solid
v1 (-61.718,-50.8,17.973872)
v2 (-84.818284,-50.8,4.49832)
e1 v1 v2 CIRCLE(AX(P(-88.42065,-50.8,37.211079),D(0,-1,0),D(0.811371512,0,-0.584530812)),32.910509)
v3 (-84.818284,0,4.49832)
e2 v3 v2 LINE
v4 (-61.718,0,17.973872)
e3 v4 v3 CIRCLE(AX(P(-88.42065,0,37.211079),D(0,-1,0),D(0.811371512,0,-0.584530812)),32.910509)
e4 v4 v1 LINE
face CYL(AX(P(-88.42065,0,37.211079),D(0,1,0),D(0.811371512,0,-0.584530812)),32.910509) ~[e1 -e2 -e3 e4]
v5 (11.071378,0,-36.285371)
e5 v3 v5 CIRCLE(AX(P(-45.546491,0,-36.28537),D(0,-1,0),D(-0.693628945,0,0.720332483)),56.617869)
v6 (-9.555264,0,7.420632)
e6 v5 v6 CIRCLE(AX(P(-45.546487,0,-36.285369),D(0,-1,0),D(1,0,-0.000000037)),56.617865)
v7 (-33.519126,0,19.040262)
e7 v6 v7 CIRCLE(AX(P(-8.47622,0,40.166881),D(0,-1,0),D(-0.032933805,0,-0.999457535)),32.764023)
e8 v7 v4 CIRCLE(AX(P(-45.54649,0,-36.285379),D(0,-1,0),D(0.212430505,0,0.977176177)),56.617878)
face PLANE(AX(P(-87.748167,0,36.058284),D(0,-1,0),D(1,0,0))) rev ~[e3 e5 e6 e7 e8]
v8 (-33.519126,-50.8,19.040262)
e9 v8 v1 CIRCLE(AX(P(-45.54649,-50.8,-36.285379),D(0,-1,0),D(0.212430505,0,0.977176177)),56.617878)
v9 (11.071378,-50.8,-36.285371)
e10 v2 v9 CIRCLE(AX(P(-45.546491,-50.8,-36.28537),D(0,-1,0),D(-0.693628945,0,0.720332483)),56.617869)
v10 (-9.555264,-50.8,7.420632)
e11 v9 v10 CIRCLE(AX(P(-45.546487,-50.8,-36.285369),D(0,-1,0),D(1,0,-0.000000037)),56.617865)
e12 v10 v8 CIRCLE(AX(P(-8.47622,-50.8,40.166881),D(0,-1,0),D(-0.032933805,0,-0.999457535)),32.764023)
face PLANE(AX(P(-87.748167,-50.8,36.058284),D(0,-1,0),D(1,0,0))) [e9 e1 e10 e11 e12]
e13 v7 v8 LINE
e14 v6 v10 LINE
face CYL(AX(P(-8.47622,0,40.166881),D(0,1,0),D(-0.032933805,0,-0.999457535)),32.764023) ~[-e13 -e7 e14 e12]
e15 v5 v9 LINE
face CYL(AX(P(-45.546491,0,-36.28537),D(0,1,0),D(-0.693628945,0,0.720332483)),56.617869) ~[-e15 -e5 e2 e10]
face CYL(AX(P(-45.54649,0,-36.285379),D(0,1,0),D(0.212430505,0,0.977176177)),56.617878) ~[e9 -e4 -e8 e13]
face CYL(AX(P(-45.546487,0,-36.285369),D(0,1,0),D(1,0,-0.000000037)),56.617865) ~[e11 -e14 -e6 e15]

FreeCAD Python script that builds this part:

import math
import FreeCAD as App
import Part
import Sketcher
Q = App.Units.Quantity

doc = App.newDocument("Part")
params = doc.addObject("Spreadsheet::Sheet", "Params")
for row, (alias, value) in enumerate([
    ("pad1_length", "2 in"),
    ("pocket1_length", "1 in"),
], start=1):
    params.set(f"A{row}", alias)
    params.set(f"B{row}", "=" + value)
    params.setAlias(f"B{row}", alias)

body = doc.addObject("PartDesign::Body", "Body")

# Sketch on XZ plane
sketch1 = doc.addObject("Sketcher::SketchObject", "Sketch")
body.addObject(sketch1)
sketch1.AttachmentSupport = (doc.XZ_Plane, [""])
sketch1.MapMode = "FlatFace"
sketch1.addGeometry([
    Part.ArcOfCircle(Part.Circle(App.Vector(-88, 37, 0), App.Vector(0, 0, 1), 33), math.radians(-36), math.radians(276)),  # 0
    Part.ArcOfCircle(Part.Circle(App.Vector(-46, -36, 0), App.Vector(0, 0, 1), 57), math.radians(134), math.radians(360)),  # 1
    Part.ArcOfCircle(Part.Circle(App.Vector(-46, -36, 0), App.Vector(0, 0, 1), 57), math.radians(0), math.radians(51)),  # 2
    Part.ArcOfCircle(Part.Circle(App.Vector(-8, 40, 0), App.Vector(0, 0, 1), 33), math.radians(-92), math.radians(220)),  # 3
    Part.ArcOfCircle(Part.Circle(App.Vector(-46, -36, 0), App.Vector(0, 0, 1), 57), math.radians(78), math.radians(107)),  # 4
], False)
sketch1.addConstraint([
    Sketcher.Constraint("Coincident", 0, 2, 1, 1),
    Sketcher.Constraint("Tangent", 1, 2, 2, 1),
    Sketcher.Constraint("Coincident", 2, 2, 3, 1),
    Sketcher.Constraint("Coincident", 3, 2, 4, 1),
    Sketcher.Constraint("Coincident", 4, 2, 0, 1),
    Sketcher.Constraint("Coincident", 4, 3, 1, 3),
    Sketcher.Constraint("Radius", 0, Q("32.910509 mm")),
    Sketcher.Constraint("Radius", 1, Q("56.617869 mm")),
    Sketcher.Constraint("Radius", 2, Q("56.617865 mm")),
    Sketcher.Constraint("Radius", 3, Q("32.764023 mm")),
    Sketcher.Constraint("Radius", 4, Q("56.617878 mm")),
    Sketcher.Constraint("DistanceX", 4, 2, -1, 1, Q("61.718 mm")),
    Sketcher.Constraint("DistanceY", 4, 3, 0, 2, Q("40.783699 mm")),
    Sketcher.Constraint("DistanceX", 3, 3, 1, 2, Q("19.547598 mm")),
    Sketcher.Constraint("DistanceY", 2, 3, 2, 2, Q("43.706001 mm")),
    Sketcher.Constraint("DistanceX", 0, 3, -1, 1, Q("88.42065 mm")),
    Sketcher.Constraint("DistanceY", -1, 1, 0, 3, Q("37.211079 mm")),
    Sketcher.Constraint("DistanceY", 1, 2, -1, 1, Q("36.285371 mm")),
])
pad1 = doc.addObject("PartDesign::Pad", "Pad")
body.addObject(pad1)
pad1.Profile = sketch1
pad1.setExpression("Length", "Params.pad1_length")

# Sketch on XZ plane
sketch2 = doc.addObject("Sketcher::SketchObject", "Sketch001")
body.addObject(sketch2)
sketch2.AttachmentSupport = (doc.XZ_Plane, [""])
sketch2.MapMode = "FlatFace"
sketch2.addGeometry([
    Part.Circle(App.Vector(-75, -19, 0), App.Vector(0, 0, 1), 11),
    Part.Circle(App.Vector(-26, -18, 0), App.Vector(0, 0, 1), 10),
], False)
sketch2.addConstraint([
    Sketcher.Constraint("Diameter", 0, Q("21.605158 mm")),
    Sketcher.Constraint("Diameter", 1, Q("20.034884 mm")),
    Sketcher.Constraint("DistanceX", 0, 3, -1, 1, Q("75.122081 mm")),
    Sketcher.Constraint("DistanceY", 0, 3, -1, 1, Q("19.301618 mm")),
    Sketcher.Constraint("DistanceY", 1, 3, -1, 1, Q("18.290848 mm")),
    Sketcher.Constraint("DistanceX", 1, 3, -1, 1, Q("25.931325 mm")),
])
pocket1 = doc.addObject("PartDesign::Pocket", "Pocket")
body.addObject(pocket1)
pocket1.Profile = sketch2
pocket1.setExpression("Length", "Params.pocket1_length")

doc.recompute()
